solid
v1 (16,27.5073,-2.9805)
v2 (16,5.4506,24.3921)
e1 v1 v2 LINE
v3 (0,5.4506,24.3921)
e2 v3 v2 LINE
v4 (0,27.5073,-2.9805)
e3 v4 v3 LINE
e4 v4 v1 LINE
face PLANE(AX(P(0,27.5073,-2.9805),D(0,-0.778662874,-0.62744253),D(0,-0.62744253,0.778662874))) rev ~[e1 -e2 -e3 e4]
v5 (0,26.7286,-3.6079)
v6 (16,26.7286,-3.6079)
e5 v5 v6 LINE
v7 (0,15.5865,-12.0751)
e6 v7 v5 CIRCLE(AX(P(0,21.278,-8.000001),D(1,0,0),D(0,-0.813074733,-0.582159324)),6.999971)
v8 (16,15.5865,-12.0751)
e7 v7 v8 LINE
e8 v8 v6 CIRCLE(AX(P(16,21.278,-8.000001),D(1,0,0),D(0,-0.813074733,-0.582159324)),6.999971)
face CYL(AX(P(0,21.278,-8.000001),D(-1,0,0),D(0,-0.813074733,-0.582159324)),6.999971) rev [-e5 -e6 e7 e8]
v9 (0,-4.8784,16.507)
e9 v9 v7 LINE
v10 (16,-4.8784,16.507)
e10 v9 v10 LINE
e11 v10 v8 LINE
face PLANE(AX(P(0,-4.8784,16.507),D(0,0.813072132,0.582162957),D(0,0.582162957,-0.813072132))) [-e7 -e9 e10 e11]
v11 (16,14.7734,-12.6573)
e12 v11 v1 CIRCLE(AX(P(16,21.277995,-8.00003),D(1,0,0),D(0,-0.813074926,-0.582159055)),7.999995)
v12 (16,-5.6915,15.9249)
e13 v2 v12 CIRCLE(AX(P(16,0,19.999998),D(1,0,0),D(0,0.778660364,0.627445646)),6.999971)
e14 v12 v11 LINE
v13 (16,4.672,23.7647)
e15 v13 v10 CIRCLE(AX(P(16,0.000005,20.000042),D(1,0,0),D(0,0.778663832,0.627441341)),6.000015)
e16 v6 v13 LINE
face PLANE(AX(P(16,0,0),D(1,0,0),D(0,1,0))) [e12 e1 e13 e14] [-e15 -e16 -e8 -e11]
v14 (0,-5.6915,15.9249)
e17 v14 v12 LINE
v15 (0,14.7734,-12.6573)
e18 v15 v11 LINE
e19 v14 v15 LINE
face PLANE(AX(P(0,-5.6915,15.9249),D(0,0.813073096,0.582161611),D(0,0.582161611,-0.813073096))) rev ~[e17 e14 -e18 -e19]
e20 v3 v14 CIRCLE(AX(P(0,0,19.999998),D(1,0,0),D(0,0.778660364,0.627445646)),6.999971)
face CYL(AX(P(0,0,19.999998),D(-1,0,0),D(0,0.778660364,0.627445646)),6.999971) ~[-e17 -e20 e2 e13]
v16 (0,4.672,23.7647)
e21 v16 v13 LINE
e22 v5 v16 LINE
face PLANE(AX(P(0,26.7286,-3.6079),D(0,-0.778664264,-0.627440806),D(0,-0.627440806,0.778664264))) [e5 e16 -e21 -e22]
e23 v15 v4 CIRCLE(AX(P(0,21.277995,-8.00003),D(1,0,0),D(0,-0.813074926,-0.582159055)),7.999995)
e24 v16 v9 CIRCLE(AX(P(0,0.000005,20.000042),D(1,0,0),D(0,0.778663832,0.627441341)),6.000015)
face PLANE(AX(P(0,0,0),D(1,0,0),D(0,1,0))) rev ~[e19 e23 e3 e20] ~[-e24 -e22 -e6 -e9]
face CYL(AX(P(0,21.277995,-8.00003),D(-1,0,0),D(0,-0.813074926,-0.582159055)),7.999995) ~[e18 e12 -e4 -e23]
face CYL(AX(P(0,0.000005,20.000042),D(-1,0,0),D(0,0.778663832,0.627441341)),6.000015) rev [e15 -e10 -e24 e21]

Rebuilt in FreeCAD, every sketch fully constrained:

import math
import FreeCAD as App
import Part
import Sketcher

V = App.Vector
Q = App.Units.Quantity

doc = App.newDocument("Part")
body = doc.addObject("PartDesign::Body", "Body")

# Sketch on YZ plane
sketch1 = body.newObject("Sketcher::SketchObject", "Sketch")
sketch1.AttachmentSupport = (doc.getObject("YZ_Plane"), [""])
sketch1.MapMode = "FlatFace"
sketch1.addGeometry(Part.LineSegment(V(-5.6915, 15.9249, 0), V(14.7734, -12.6573, 0)), False)
sketch1.addGeometry(Part.ArcOfCircle(Part.Circle(V(21.278, -8, 0), V(0, 0, 1), 8.000017), math.radians(-144.397299), math.radians(38.861477)), False)
sketch1.addGeometry(Part.LineSegment(V(27.5073, -2.9805, 0), V(5.4506, 24.3921, 0)), False)
sketch1.addGeometry(Part.ArcOfCircle(Part.Circle(V(0, 20, 0), V(0, 0, 1), 6.99997), math.radians(38.861909), math.radians(215.60257)), False)
sketch1.addGeometry(Part.ArcOfCircle(Part.Circle(V(0, 20, 0), V(0, 0, 1), 6.000046), math.radians(38.861885), math.radians(215.603173)), False)
sketch1.addGeometry(Part.LineSegment(V(4.672, 23.7647, 0), V(26.7286, -3.6079, 0)), False)
sketch1.addGeometry(Part.ArcOfCircle(Part.Circle(V(21.278, -8, 0), V(0, 0, 1), 6.999972), math.radians(-144.39743), math.radians(38.861909)), False)
sketch1.addGeometry(Part.LineSegment(V(15.5865, -12.0751, 0), V(-4.8784, 16.507, 0)), False)
sketch1.addConstraint(Sketcher.Constraint("Tangent", 0, 2, 1, 1))
sketch1.addConstraint(Sketcher.Constraint("Tangent", 1, 2, 2, 1))
sketch1.addConstraint(Sketcher.Constraint("Tangent", 2, 2, 3, 1))
sketch1.addConstraint(Sketcher.Constraint("Tangent", 3, 2, 0, 1))
sketch1.addConstraint(Sketcher.Constraint("Tangent", 4, 1, 5, 1))
sketch1.addConstraint(Sketcher.Constraint("Tangent", 5, 2, 6, 2))
sketch1.addConstraint(Sketcher.Constraint("Tangent", 6, 1, 7, 1))
sketch1.addConstraint(Sketcher.Constraint("Tangent", 7, 2, 4, 2))
sketch1.addConstraint(Sketcher.Constraint("Coincident", 4, 3, 3, 3))
sketch1.addConstraint(Sketcher.Constraint("Coincident", 6, 3, 1, 3))
sketch1.addConstraint(Sketcher.Constraint("Equal", 3, 6))
sketch1.addConstraint(Sketcher.Constraint("PointOnObject", 3, 3, -2))
sketch1.addConstraint(Sketcher.Constraint("Parallel", 2, 5))
sketch1.addConstraint(Sketcher.Constraint("Radius", 1, Q("8 mm")))
sketch1.addConstraint(Sketcher.Constraint("Radius", 3, Q("7 mm")))
sketch1.addConstraint(Sketcher.Constraint("DistanceY", 1, 3, -1, 1, Q("8 mm")))
sketch1.addConstraint(Sketcher.Constraint("DistanceY", -1, 1, 3, 3, Q("20 mm")))
sketch1.addConstraint(Sketcher.Constraint("DistanceX", -1, 1, 1, 3, Q("21.278 mm")))
pad1 = body.newObject("PartDesign::Pad", "Pad")
pad1.Profile = sketch1
pad1.Length = 16

doc.recompute()
